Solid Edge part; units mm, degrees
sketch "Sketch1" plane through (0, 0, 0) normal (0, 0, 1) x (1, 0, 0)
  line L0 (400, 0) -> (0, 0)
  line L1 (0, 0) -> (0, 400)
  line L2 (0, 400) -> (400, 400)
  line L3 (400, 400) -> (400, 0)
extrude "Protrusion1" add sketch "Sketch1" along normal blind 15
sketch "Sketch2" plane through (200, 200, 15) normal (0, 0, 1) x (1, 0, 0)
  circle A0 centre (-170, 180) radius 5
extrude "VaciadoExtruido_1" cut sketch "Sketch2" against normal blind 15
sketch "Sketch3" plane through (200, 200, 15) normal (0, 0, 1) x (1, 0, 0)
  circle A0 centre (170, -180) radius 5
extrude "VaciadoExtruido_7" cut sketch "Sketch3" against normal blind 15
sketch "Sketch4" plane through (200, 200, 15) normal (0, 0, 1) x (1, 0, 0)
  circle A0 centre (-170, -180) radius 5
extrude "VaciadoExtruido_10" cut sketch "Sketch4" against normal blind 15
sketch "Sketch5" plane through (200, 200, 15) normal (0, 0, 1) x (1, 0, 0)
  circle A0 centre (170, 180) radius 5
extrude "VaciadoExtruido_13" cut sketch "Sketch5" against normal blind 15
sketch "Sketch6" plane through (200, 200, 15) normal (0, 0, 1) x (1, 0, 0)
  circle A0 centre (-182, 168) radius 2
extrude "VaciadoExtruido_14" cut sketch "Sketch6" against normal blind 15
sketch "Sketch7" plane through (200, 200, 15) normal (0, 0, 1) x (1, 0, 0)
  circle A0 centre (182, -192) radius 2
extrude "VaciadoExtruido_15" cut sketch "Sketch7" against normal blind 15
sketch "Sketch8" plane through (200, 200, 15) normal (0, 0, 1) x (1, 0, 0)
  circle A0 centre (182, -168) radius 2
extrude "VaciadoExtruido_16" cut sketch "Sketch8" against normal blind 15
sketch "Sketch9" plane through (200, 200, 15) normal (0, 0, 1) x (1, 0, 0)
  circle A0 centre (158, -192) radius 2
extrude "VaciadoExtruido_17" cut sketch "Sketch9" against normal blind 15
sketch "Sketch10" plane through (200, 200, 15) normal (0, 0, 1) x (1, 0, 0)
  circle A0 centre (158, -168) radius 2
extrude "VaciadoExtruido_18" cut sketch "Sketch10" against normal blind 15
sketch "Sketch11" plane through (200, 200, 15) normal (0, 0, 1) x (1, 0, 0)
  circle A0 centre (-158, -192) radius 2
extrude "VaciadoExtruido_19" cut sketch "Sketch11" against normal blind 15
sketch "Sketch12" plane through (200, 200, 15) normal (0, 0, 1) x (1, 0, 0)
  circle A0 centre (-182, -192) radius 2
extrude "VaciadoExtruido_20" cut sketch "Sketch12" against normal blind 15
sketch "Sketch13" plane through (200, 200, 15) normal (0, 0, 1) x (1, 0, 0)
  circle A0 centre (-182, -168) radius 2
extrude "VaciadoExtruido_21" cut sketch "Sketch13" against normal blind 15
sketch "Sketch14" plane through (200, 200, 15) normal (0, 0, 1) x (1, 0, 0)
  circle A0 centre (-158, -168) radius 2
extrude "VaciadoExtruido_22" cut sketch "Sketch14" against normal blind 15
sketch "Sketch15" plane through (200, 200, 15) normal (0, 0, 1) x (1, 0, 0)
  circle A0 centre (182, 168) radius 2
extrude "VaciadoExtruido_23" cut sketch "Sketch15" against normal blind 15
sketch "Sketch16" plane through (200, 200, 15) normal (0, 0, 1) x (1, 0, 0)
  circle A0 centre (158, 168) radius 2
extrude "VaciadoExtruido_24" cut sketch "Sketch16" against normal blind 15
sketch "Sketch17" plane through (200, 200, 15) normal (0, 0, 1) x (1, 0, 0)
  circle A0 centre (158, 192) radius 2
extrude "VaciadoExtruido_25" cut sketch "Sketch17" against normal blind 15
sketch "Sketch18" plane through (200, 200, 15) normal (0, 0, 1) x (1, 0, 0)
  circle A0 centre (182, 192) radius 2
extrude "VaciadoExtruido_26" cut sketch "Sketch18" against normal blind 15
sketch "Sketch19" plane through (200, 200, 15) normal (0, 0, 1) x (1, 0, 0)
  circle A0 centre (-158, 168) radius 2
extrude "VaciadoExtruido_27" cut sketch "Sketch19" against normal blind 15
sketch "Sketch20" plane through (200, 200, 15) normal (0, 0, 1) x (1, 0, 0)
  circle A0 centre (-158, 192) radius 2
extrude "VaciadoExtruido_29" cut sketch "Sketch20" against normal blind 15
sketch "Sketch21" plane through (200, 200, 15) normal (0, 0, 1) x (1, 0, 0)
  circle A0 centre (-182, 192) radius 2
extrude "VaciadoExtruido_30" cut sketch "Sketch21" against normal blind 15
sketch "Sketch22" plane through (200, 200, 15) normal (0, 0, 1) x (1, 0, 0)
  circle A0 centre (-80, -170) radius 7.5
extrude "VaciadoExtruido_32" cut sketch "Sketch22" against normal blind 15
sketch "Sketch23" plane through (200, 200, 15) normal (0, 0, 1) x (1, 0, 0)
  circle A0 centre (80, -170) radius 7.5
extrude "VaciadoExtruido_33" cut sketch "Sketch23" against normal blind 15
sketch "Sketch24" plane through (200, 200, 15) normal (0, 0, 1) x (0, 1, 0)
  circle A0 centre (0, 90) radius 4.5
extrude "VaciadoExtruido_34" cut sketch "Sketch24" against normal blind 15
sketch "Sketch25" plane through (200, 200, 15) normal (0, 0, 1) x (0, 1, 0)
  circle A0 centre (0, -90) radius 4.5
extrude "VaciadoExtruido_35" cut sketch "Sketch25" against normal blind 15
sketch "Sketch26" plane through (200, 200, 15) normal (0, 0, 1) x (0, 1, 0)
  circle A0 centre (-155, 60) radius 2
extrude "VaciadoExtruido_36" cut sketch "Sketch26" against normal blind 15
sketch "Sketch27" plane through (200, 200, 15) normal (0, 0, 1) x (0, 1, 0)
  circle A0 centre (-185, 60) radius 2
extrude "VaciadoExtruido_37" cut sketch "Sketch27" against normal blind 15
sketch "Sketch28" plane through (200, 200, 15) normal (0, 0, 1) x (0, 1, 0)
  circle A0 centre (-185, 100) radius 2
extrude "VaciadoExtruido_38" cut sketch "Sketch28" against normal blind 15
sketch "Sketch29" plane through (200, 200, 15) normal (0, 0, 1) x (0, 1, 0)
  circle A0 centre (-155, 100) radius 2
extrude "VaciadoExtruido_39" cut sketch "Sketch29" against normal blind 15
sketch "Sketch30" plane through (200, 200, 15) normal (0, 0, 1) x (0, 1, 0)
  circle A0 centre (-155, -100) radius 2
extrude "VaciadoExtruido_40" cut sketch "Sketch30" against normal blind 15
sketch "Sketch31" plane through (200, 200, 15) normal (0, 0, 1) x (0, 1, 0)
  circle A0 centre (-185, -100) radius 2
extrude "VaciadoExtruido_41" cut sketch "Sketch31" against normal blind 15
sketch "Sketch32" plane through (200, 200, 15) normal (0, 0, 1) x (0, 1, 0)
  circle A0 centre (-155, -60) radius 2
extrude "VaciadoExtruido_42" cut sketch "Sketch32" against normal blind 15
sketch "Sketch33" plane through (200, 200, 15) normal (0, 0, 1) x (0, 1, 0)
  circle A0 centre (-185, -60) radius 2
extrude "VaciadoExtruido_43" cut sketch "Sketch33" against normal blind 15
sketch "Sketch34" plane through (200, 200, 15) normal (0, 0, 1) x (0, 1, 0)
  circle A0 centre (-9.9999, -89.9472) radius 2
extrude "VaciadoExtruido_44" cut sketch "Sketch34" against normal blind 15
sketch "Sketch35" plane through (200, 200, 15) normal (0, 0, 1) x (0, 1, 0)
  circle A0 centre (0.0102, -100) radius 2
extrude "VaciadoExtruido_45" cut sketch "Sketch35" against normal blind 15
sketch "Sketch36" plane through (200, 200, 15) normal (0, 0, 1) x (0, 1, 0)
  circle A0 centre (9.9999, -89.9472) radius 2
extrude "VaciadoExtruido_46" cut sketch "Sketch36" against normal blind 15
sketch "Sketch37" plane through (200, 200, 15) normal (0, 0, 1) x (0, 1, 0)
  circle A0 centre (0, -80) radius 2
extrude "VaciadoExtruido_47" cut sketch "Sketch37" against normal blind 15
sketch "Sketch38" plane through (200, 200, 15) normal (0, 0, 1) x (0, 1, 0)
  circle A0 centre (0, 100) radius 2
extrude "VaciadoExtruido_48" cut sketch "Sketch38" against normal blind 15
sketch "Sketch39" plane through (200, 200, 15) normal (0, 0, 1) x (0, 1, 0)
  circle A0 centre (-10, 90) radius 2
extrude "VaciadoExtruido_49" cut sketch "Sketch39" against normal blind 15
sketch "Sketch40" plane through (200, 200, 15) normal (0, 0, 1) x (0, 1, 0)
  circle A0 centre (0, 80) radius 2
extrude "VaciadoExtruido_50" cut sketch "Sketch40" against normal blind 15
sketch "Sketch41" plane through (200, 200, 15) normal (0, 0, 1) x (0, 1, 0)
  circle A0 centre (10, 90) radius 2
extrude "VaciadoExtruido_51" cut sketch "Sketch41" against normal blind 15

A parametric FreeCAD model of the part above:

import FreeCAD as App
import Part
import Sketcher


def add_polygon(sketch, points):
    """Adds a closed chain of lines whose ends are joined by coincident constraints."""
    first, n = sketch.GeometryCount, len(points)
    for a, b in zip(points, points[1:] + points[:1]):
        sketch.addGeometry(Part.LineSegment(App.Vector(*a, 0), App.Vector(*b, 0)), False)
    for i in range(n):
        sketch.addConstraint(Sketcher.Constraint("Coincident", first + i, 2, first + (i + 1) % n, 1))

doc = App.newDocument("Part")
body = doc.addObject("PartDesign::Body", "Body")

# Sketch on XY plane
sketch1 = body.newObject("Sketcher::SketchObject", "Sketch")
sketch1.AttachmentSupport = (doc.getObject("XY_Plane"), [""])
sketch1.MapMode = "FlatFace"
add_polygon(sketch1, [(0, 0), (400, 0), (400, 400), (0, 400)])  # lines 0-3
sketch1.addConstraint([
    Sketcher.Constraint("Horizontal", 0),
    Sketcher.Constraint("Vertical", 1),
    Sketcher.Constraint("Horizontal", 2),
    Sketcher.Constraint("Vertical", 3),
    Sketcher.Constraint("Coincident", 3, 2, -1, 1),
    Sketcher.Constraint("Equal", 2, 1),
    Sketcher.Constraint("DistanceX", 0, 1, 0, 2, 400.0),
])
pad1 = body.newObject("PartDesign::Pad", "Pad")
pad1.Profile = sketch1
pad1.Length = 15

# Sketch on XY plane
sketch2 = body.newObject("Sketcher::SketchObject", "Sketch001")
sketch2.AttachmentSupport = (doc.getObject("XY_Plane"), [""])
sketch2.MapMode = "FlatFace"
sketch2.AttachmentOffset = App.Placement(App.Vector(0, 0, 15), App.Rotation())
sketch2.addGeometry(Part.Circle(App.Vector(30, 380, 0), App.Vector(0, 0, 1), 5), False)
sketch2.addConstraint([
    Sketcher.Constraint("Diameter", 0, 10.0),
    Sketcher.Constraint("DistanceX", -1, 1, 0, 3, 30.0),
    Sketcher.Constraint("DistanceY", -1, 1, 0, 3, 380.0),
])
pocket1 = body.newObject("PartDesign::Pocket", "Pocket")
pocket1.Profile = sketch2
pocket1.Length = 15

# Sketch on XY plane
sketch3 = body.newObject("Sketcher::SketchObject", "Sketch002")
sketch3.AttachmentSupport = (doc.getObject("XY_Plane"), [""])
sketch3.MapMode = "FlatFace"
sketch3.AttachmentOffset = App.Placement(App.Vector(0, 0, 15), App.Rotation())
sketch3.addGeometry(Part.Circle(App.Vector(370, 20, 0), App.Vector(0, 0, 1), 5), False)
sketch3.addConstraint([
    Sketcher.Constraint("Diameter", 0, 10.0),
    Sketcher.Constraint("DistanceX", -1, 1, 0, 3, 370.0),
    Sketcher.Constraint("DistanceY", -1, 1, 0, 3, 20.0),
])
pocket2 = body.newObject("PartDesign::Pocket", "Pocket001")
pocket2.Profile = sketch3
pocket2.Length = 15

# Sketch on XY plane
sketch4 = body.newObject("Sketcher::SketchObject", "Sketch003")
sketch4.AttachmentSupport = (doc.getObject("XY_Plane"), [""])
sketch4.MapMode = "FlatFace"
sketch4.AttachmentOffset = App.Placement(App.Vector(0, 0, 15), App.Rotation())
sketch4.addGeometry(Part.Circle(App.Vector(30, 20, 0), App.Vector(0, 0, 1), 5), False)
sketch4.addConstraint([
    Sketcher.Constraint("Diameter", 0, 10.0),
    Sketcher.Constraint("DistanceX", -1, 1, 0, 3, 30.0),
    Sketcher.Constraint("DistanceY", -1, 1, 0, 3, 20.0),
])
pocket3 = body.newObject("PartDesign::Pocket", "Pocket002")
pocket3.Profile = sketch4
pocket3.Length = 15

# Sketch on XY plane
sketch5 = body.newObject("Sketcher::SketchObject", "Sketch004")
sketch5.AttachmentSupport = (doc.getObject("XY_Plane"), [""])
sketch5.MapMode = "FlatFace"
sketch5.AttachmentOffset = App.Placement(App.Vector(0, 0, 15), App.Rotation())
sketch5.addGeometry(Part.Circle(App.Vector(370, 380, 0), App.Vector(0, 0, 1), 5), False)
sketch5.addConstraint([
    Sketcher.Constraint("Diameter", 0, 10.0),
    Sketcher.Constraint("DistanceX", -1, 1, 0, 3, 370.0),
    Sketcher.Constraint("DistanceY", -1, 1, 0, 3, 380.0),
])
pocket4 = body.newObject("PartDesign::Pocket", "Pocket003")
pocket4.Profile = sketch5
pocket4.Length = 15

# Sketch on XY plane
sketch6 = body.newObject("Sketcher::SketchObject", "Sketch005")
sketch6.AttachmentSupport = (doc.getObject("XY_Plane"), [""])
sketch6.MapMode = "FlatFace"
sketch6.AttachmentOffset = App.Placement(App.Vector(0, 0, 15), App.Rotation())
sketch6.addGeometry(Part.Circle(App.Vector(18, 368, 0), App.Vector(0, 0, 1), 2), False)
sketch6.addConstraint([
    Sketcher.Constraint("Diameter", 0, 4.0),
    Sketcher.Constraint("DistanceX", -1, 1, 0, 3, 18.0),
    Sketcher.Constraint("DistanceY", -1, 1, 0, 3, 368.0),
])
pocket5 = body.newObject("PartDesign::Pocket", "Pocket004")
pocket5.Profile = sketch6
pocket5.Length = 15

# Sketch on XY plane
sketch7 = body.newObject("Sketcher::SketchObject", "Sketch006")
sketch7.AttachmentSupport = (doc.getObject("XY_Plane"), [""])
sketch7.MapMode = "FlatFace"
sketch7.AttachmentOffset = App.Placement(App.Vector(0, 0, 15), App.Rotation())
sketch7.addGeometry(Part.Circle(App.Vector(382, 8, 0), App.Vector(0, 0, 1), 2), False)
sketch7.addConstraint([
    Sketcher.Constraint("Diameter", 0, 4.0),
    Sketcher.Constraint("DistanceX", -1, 1, 0, 3, 382.0),
    Sketcher.Constraint("DistanceY", -1, 1, 0, 3, 8.0),
])
pocket6 = body.newObject("PartDesign::Pocket", "Pocket005")
pocket6.Profile = sketch7
pocket6.Length = 15

# Sketch on XY plane
sketch8 = body.newObject("Sketcher::SketchObject", "Sketch007")
sketch8.AttachmentSupport = (doc.getObject("XY_Plane"), [""])
sketch8.MapMode = "FlatFace"
sketch8.AttachmentOffset = App.Placement(App.Vector(0, 0, 15), App.Rotation())
sketch8.addGeometry(Part.Circle(App.Vector(382, 32, 0), App.Vector(0, 0, 1), 2), False)
sketch8.addConstraint([
    Sketcher.Constraint("Diameter", 0, 4.0),
    Sketcher.Constraint("DistanceX", -1, 1, 0, 3, 382.0),
    Sketcher.Constraint("DistanceY", -1, 1, 0, 3, 32.0),
])
pocket7 = body.newObject("PartDesign::Pocket", "Pocket006")
pocket7.Profile = sketch8
pocket7.Length = 15

# Sketch on XY plane
sketch9 = body.newObject("Sketcher::SketchObject", "Sketch008")
sketch9.AttachmentSupport = (doc.getObject("XY_Plane"), [""])
sketch9.MapMode = "FlatFace"
sketch9.AttachmentOffset = App.Placement(App.Vector(0, 0, 15), App.Rotation())
sketch9.addGeometry(Part.Circle(App.Vector(358, 8, 0), App.Vector(0, 0, 1), 2), False)
sketch9.addConstraint([
    Sketcher.Constraint("Diameter", 0, 4.0),
    Sketcher.Constraint("DistanceX", -1, 1, 0, 3, 358.0),
    Sketcher.Constraint("DistanceY", -1, 1, 0, 3, 8.0),
])
pocket8 = body.newObject("PartDesign::Pocket", "Pocket007")
pocket8.Profile = sketch9
pocket8.Length = 15

# Sketch on XY plane
sketch10 = body.newObject("Sketcher::SketchObject", "Sketch009")
sketch10.AttachmentSupport = (doc.getObject("XY_Plane"), [""])
sketch10.MapMode = "FlatFace"
sketch10.AttachmentOffset = App.Placement(App.Vector(0, 0, 15), App.Rotation())
sketch10.addGeometry(Part.Circle(App.Vector(358, 32, 0), App.Vector(0, 0, 1), 2), False)
sketch10.addConstraint([
    Sketcher.Constraint("Diameter", 0, 4.0),
    Sketcher.Constraint("DistanceX", -1, 1, 0, 3, 358.0),
    Sketcher.Constraint("DistanceY", -1, 1, 0, 3, 32.0),
])
pocket9 = body.newObject("PartDesign::Pocket", "Pocket008")
pocket9.Profile = sketch10
pocket9.Length = 15

# Sketch on XY plane
sketch11 = body.newObject("Sketcher::SketchObject", "Sketch010")
sketch11.AttachmentSupport = (doc.getObject("XY_Plane"), [""])
sketch11.MapMode = "FlatFace"
sketch11.AttachmentOffset = App.Placement(App.Vector(0, 0, 15), App.Rotation())
sketch11.addGeometry(Part.Circle(App.Vector(42, 8, 0), App.Vector(0, 0, 1), 2), False)
sketch11.addConstraint([
    Sketcher.Constraint("Diameter", 0, 4.0),
    Sketcher.Constraint("DistanceX", -1, 1, 0, 3, 42.0),
    Sketcher.Constraint("DistanceY", -1, 1, 0, 3, 8.0),
])
pocket10 = body.newObject("PartDesign::Pocket", "Pocket009")
pocket10.Profile = sketch11
pocket10.Length = 15

# Sketch on XY plane
sketch12 = body.newObject("Sketcher::SketchObject", "Sketch011")
sketch12.AttachmentSupport = (doc.getObject("XY_Plane"), [""])
sketch12.MapMode = "FlatFace"
sketch12.AttachmentOffset = App.Placement(App.Vector(0, 0, 15), App.Rotation())
sketch12.addGeometry(Part.Circle(App.Vector(18, 8, 0), App.Vector(0, 0, 1), 2), False)
sketch12.addConstraint([
    Sketcher.Constraint("Diameter", 0, 4.0),
    Sketcher.Constraint("DistanceX", -1, 1, 0, 3, 18.0),
    Sketcher.Constraint("DistanceY", -1, 1, 0, 3, 8.0),
])
pocket11 = body.newObject("PartDesign::Pocket", "Pocket010")
pocket11.Profile = sketch12
pocket11.Length = 15

# Sketch on XY plane
sketch13 = body.newObject("Sketcher::SketchObject", "Sketch012")
sketch13.AttachmentSupport = (doc.getObject("XY_Plane"), [""])
sketch13.MapMode = "FlatFace"
sketch13.AttachmentOffset = App.Placement(App.Vector(0, 0, 15), App.Rotation())
sketch13.addGeometry(Part.Circle(App.Vector(18, 32, 0), App.Vector(0, 0, 1), 2), False)
sketch13.addConstraint([
    Sketcher.Constraint("Diameter", 0, 4.0),
    Sketcher.Constraint("DistanceX", -1, 1, 0, 3, 18.0),
    Sketcher.Constraint("DistanceY", -1, 1, 0, 3, 32.0),
])
pocket12 = body.newObject("PartDesign::Pocket", "Pocket011")
pocket12.Profile = sketch13
pocket12.Length = 15

# Sketch on XY plane
sketch14 = body.newObject("Sketcher::SketchObject", "Sketch013")
sketch14.AttachmentSupport = (doc.getObject("XY_Plane"), [""])
sketch14.MapMode = "FlatFace"
sketch14.AttachmentOffset = App.Placement(App.Vector(0, 0, 15), App.Rotation())
sketch14.addGeometry(Part.Circle(App.Vector(42, 32, 0), App.Vector(0, 0, 1), 2), False)
sketch14.addConstraint([
    Sketcher.Constraint("Diameter", 0, 4.0),
    Sketcher.Constraint("DistanceX", -1, 1, 0, 3, 42.0),
    Sketcher.Constraint("DistanceY", -1, 1, 0, 3, 32.0),
])
pocket13 = body.newObject("PartDesign::Pocket", "Pocket012")
pocket13.Profile = sketch14
pocket13.Length = 15

# Sketch on XY plane
sketch15 = body.newObject("Sketcher::SketchObject", "Sketch014")
sketch15.AttachmentSupport = (doc.getObject("XY_Plane"), [""])
sketch15.MapMode = "FlatFace"
sketch15.AttachmentOffset = App.Placement(App.Vector(0, 0, 15), App.Rotation())
sketch15.addGeometry(Part.Circle(App.Vector(382, 368, 0), App.Vector(0, 0, 1), 2), False)
sketch15.addConstraint([
    Sketcher.Constraint("Diameter", 0, 4.0),
    Sketcher.Constraint("DistanceX", -1, 1, 0, 3, 382.0),
    Sketcher.Constraint("DistanceY", -1, 1, 0, 3, 368.0),
])
pocket14 = body.newObject("PartDesign::Pocket", "Pocket013")
pocket14.Profile = sketch15
pocket14.Length = 15

# Sketch on XY plane
sketch16 = body.newObject("Sketcher::SketchObject", "Sketch015")
sketch16.AttachmentSupport = (doc.getObject("XY_Plane"), [""])
sketch16.MapMode = "FlatFace"
sketch16.AttachmentOffset = App.Placement(App.Vector(0, 0, 15), App.Rotation())
sketch16.addGeometry(Part.Circle(App.Vector(358, 368, 0), App.Vector(0, 0, 1), 2), False)
sketch16.addConstraint([
    Sketcher.Constraint("Diameter", 0, 4.0),
    Sketcher.Constraint("DistanceX", -1, 1, 0, 3, 358.0),
    Sketcher.Constraint("DistanceY", -1, 1, 0, 3, 368.0),
])
pocket15 = body.newObject("PartDesign::Pocket", "Pocket014")
pocket15.Profile = sketch16
pocket15.Length = 15

# Sketch on XY plane
sketch17 = body.newObject("Sketcher::SketchObject", "Sketch016")
sketch17.AttachmentSupport = (doc.getObject("XY_Plane"), [""])
sketch17.MapMode = "FlatFace"
sketch17.AttachmentOffset = App.Placement(App.Vector(0, 0, 15), App.Rotation())
sketch17.addGeometry(Part.Circle(App.Vector(358, 392, 0), App.Vector(0, 0, 1), 2), False)
sketch17.addConstraint([
    Sketcher.Constraint("Diameter", 0, 4.0),
    Sketcher.Constraint("DistanceX", -1, 1, 0, 3, 358.0),
    Sketcher.Constraint("DistanceY", -1, 1, 0, 3, 392.0),
])
pocket16 = body.newObject("PartDesign::Pocket", "Pocket015")
pocket16.Profile = sketch17
pocket16.Length = 15

# Sketch on XY plane
sketch18 = body.newObject("Sketcher::SketchObject", "Sketch017")
sketch18.AttachmentSupport = (doc.getObject("XY_Plane"), [""])
sketch18.MapMode = "FlatFace"
sketch18.AttachmentOffset = App.Placement(App.Vector(0, 0, 15), App.Rotation())
sketch18.addGeometry(Part.Circle(App.Vector(382, 392, 0), App.Vector(0, 0, 1), 2), False)
sketch18.addConstraint([
    Sketcher.Constraint("Diameter", 0, 4.0),
    Sketcher.Constraint("DistanceX", -1, 1, 0, 3, 382.0),
    Sketcher.Constraint("DistanceY", -1, 1, 0, 3, 392.0),
])
pocket17 = body.newObject("PartDesign::Pocket", "Pocket016")
pocket17.Profile = sketch18
pocket17.Length = 15

# Sketch on XY plane
sketch19 = body.newObject("Sketcher::SketchObject", "Sketch018")
sketch19.AttachmentSupport = (doc.getObject("XY_Plane"), [""])
sketch19.MapMode = "FlatFace"
sketch19.AttachmentOffset = App.Placement(App.Vector(0, 0, 15), App.Rotation())
sketch19.addGeometry(Part.Circle(App.Vector(42, 368, 0), App.Vector(0, 0, 1), 2), False)
sketch19.addConstraint([
    Sketcher.Constraint("Diameter", 0, 4.0),
    Sketcher.Constraint("DistanceX", -1, 1, 0, 3, 42.0),
    Sketcher.Constraint("DistanceY", -1, 1, 0, 3, 368.0),
])
pocket18 = body.newObject("PartDesign::Pocket", "Pocket017")
pocket18.Profile = sketch19
pocket18.Length = 15

# Sketch on XY plane
sketch20 = body.newObject("Sketcher::SketchObject", "Sketch019")
sketch20.AttachmentSupport = (doc.getObject("XY_Plane"), [""])
sketch20.MapMode = "FlatFace"
sketch20.AttachmentOffset = App.Placement(App.Vector(0, 0, 15), App.Rotation())
sketch20.addGeometry(Part.Circle(App.Vector(42, 392, 0), App.Vector(0, 0, 1), 2), False)
sketch20.addConstraint([
    Sketcher.Constraint("Diameter", 0, 4.0),
    Sketcher.Constraint("DistanceX", -1, 1, 0, 3, 42.0),
    Sketcher.Constraint("DistanceY", -1, 1, 0, 3, 392.0),
])
pocket19 = body.newObject("PartDesign::Pocket", "Pocket018")
pocket19.Profile = sketch20
pocket19.Length = 15

# Sketch on XY plane
sketch21 = body.newObject("Sketcher::SketchObject", "Sketch020")
sketch21.AttachmentSupport = (doc.getObject("XY_Plane"), [""])
sketch21.MapMode = "FlatFace"
sketch21.AttachmentOffset = App.Placement(App.Vector(0, 0, 15), App.Rotation())
sketch21.addGeometry(Part.Circle(App.Vector(18, 392, 0), App.Vector(0, 0, 1), 2), False)
sketch21.addConstraint([
    Sketcher.Constraint("Diameter", 0, 4.0),
    Sketcher.Constraint("DistanceX", -1, 1, 0, 3, 18.0),
    Sketcher.Constraint("DistanceY", -1, 1, 0, 3, 392.0),
])
pocket20 = body.newObject("PartDesign::Pocket", "Pocket019")
pocket20.Profile = sketch21
pocket20.Length = 15

# Sketch on XY plane
sketch22 = body.newObject("Sketcher::SketchObject", "Sketch021")
sketch22.AttachmentSupport = (doc.getObject("XY_Plane"), [""])
sketch22.MapMode = "FlatFace"
sketch22.AttachmentOffset = App.Placement(App.Vector(0, 0, 15), App.Rotation())
sketch22.addGeometry(Part.Circle(App.Vector(120, 30, 0), App.Vector(0, 0, 1), 7.5), False)
sketch22.addConstraint([
    Sketcher.Constraint("Diameter", 0, 15.0),
    Sketcher.Constraint("DistanceX", -1, 1, 0, 3, 120.0),
    Sketcher.Constraint("DistanceY", -1, 1, 0, 3, 30.0),
])
pocket21 = body.newObject("PartDesign::Pocket", "Pocket020")
pocket21.Profile = sketch22
pocket21.Length = 15

# Sketch on XY plane
sketch23 = body.newObject("Sketcher::SketchObject", "Sketch022")
sketch23.AttachmentSupport = (doc.getObject("XY_Plane"), [""])
sketch23.MapMode = "FlatFace"
sketch23.AttachmentOffset = App.Placement(App.Vector(0, 0, 15), App.Rotation())
sketch23.addGeometry(Part.Circle(App.Vector(280, 30, 0), App.Vector(0, 0, 1), 7.5), False)
sketch23.addConstraint([
    Sketcher.Constraint("Diameter", 0, 15.0),
    Sketcher.Constraint("DistanceX", -1, 1, 0, 3, 280.0),
    Sketcher.Constraint("DistanceY", -1, 1, 0, 3, 30.0),
])
pocket22 = body.newObject("PartDesign::Pocket", "Pocket021")
pocket22.Profile = sketch23
pocket22.Length = 15

# Sketch on XY plane
sketch24 = body.newObject("Sketcher::SketchObject", "Sketch023")
sketch24.AttachmentSupport = (doc.getObject("XY_Plane"), [""])
sketch24.MapMode = "FlatFace"
sketch24.AttachmentOffset = App.Placement(App.Vector(0, 0, 15), App.Rotation())
sketch24.addGeometry(Part.Circle(App.Vector(110, 200, 0), App.Vector(0, 0, 1), 4.5), False)
sketch24.addConstraint([
    Sketcher.Constraint("Diameter", 0, 9.0),
    Sketcher.Constraint("DistanceX", -1, 1, 0, 3, 110.0),
    Sketcher.Constraint("DistanceY", -1, 1, 0, 3, 200.0),
])
pocket23 = body.newObject("PartDesign::Pocket", "Pocket022")
pocket23.Profile = sketch24
pocket23.Length = 15

# Sketch on XY plane
sketch25 = body.newObject("Sketcher::SketchObject", "Sketch024")
sketch25.AttachmentSupport = (doc.getObject("XY_Plane"), [""])
sketch25.MapMode = "FlatFace"
sketch25.AttachmentOffset = App.Placement(App.Vector(0, 0, 15), App.Rotation())
sketch25.addGeometry(Part.Circle(App.Vector(290, 200, 0), App.Vector(0, 0, 1), 4.5), False)
sketch25.addConstraint([
    Sketcher.Constraint("Diameter", 0, 9.0),
    Sketcher.Constraint("DistanceX", -1, 1, 0, 3, 290.0),
    Sketcher.Constraint("DistanceY", -1, 1, 0, 3, 200.0),
])
pocket24 = body.newObject("PartDesign::Pocket", "Pocket023")
pocket24.Profile = sketch25
pocket24.Length = 15

# Sketch on XY plane
sketch26 = body.newObject("Sketcher::SketchObject", "Sketch025")
sketch26.AttachmentSupport = (doc.getObject("XY_Plane"), [""])
sketch26.MapMode = "FlatFace"
sketch26.AttachmentOffset = App.Placement(App.Vector(0, 0, 15), App.Rotation())
sketch26.addGeometry(Part.Circle(App.Vector(140, 45, 0), App.Vector(0, 0, 1), 2), False)
sketch26.addConstraint([
    Sketcher.Constraint("Diameter", 0, 4.0),
    Sketcher.Constraint("DistanceX", -1, 1, 0, 3, 140.0),
    Sketcher.Constraint("DistanceY", -1, 1, 0, 3, 45.0),
])
pocket25 = body.newObject("PartDesign::Pocket", "Pocket024")
pocket25.Profile = sketch26
pocket25.Length = 15

# Sketch on XY plane
sketch27 = body.newObject("Sketcher::SketchObject", "Sketch026")
sketch27.AttachmentSupport = (doc.getObject("XY_Plane"), [""])
sketch27.MapMode = "FlatFace"
sketch27.AttachmentOffset = App.Placement(App.Vector(0, 0, 15), App.Rotation())
sketch27.addGeometry(Part.Circle(App.Vector(140, 15, 0), App.Vector(0, 0, 1), 2), False)
sketch27.addConstraint([
    Sketcher.Constraint("Diameter", 0, 4.0),
    Sketcher.Constraint("DistanceX", -1, 1, 0, 3, 140.0),
    Sketcher.Constraint("DistanceY", -1, 1, 0, 3, 15.0),
])
pocket26 = body.newObject("PartDesign::Pocket", "Pocket025")
pocket26.Profile = sketch27
pocket26.Length = 15

# Sketch on XY plane
sketch28 = body.newObject("Sketcher::SketchObject", "Sketch027")
sketch28.AttachmentSupport = (doc.getObject("XY_Plane"), [""])
sketch28.MapMode = "FlatFace"
sketch28.AttachmentOffset = App.Placement(App.Vector(0, 0, 15), App.Rotation())
sketch28.addGeometry(Part.Circle(App.Vector(100, 15, 0), App.Vector(0, 0, 1), 2), False)
sketch28.addConstraint([
    Sketcher.Constraint("Diameter", 0, 4.0),
    Sketcher.Constraint("DistanceX", -1, 1, 0, 3, 100.0),
    Sketcher.Constraint("DistanceY", -1, 1, 0, 3, 15.0),
])
pocket27 = body.newObject("PartDesign::Pocket", "Pocket026")
pocket27.Profile = sketch28
pocket27.Length = 15

# Sketch on XY plane
sketch29 = body.newObject("Sketcher::SketchObject", "Sketch028")
sketch29.AttachmentSupport = (doc.getObject("XY_Plane"), [""])
sketch29.MapMode = "FlatFace"
sketch29.AttachmentOffset = App.Placement(App.Vector(0, 0, 15), App.Rotation())
sketch29.addGeometry(Part.Circle(App.Vector(100, 45, 0), App.Vector(0, 0, 1), 2), False)
sketch29.addConstraint([
    Sketcher.Constraint("Diameter", 0, 4.0),
    Sketcher.Constraint("DistanceX", -1, 1, 0, 3, 100.0),
    Sketcher.Constraint("DistanceY", -1, 1, 0, 3, 45.0),
])
pocket28 = body.newObject("PartDesign::Pocket", "Pocket027")
pocket28.Profile = sketch29
pocket28.Length = 15

# Sketch on XY plane
sketch30 = body.newObject("Sketcher::SketchObject", "Sketch029")
sketch30.AttachmentSupport = (doc.getObject("XY_Plane"), [""])
sketch30.MapMode = "FlatFace"
sketch30.AttachmentOffset = App.Placement(App.Vector(0, 0, 15), App.Rotation())
sketch30.addGeometry(Part.Circle(App.Vector(300, 45, 0), App.Vector(0, 0, 1), 2), False)
sketch30.addConstraint([
    Sketcher.Constraint("Diameter", 0, 4.0),
    Sketcher.Constraint("DistanceX", -1, 1, 0, 3, 300.0),
    Sketcher.Constraint("DistanceY", -1, 1, 0, 3, 45.0),
])
pocket29 = body.newObject("PartDesign::Pocket", "Pocket028")
pocket29.Profile = sketch30
pocket29.Length = 15

# Sketch on XY plane
sketch31 = body.newObject("Sketcher::SketchObject", "Sketch030")
sketch31.AttachmentSupport = (doc.getObject("XY_Plane"), [""])
sketch31.MapMode = "FlatFace"
sketch31.AttachmentOffset = App.Placement(App.Vector(0, 0, 15), App.Rotation())
sketch31.addGeometry(Part.Circle(App.Vector(300, 15, 0), App.Vector(0, 0, 1), 2), False)
sketch31.addConstraint([
    Sketcher.Constraint("Diameter", 0, 4.0),
    Sketcher.Constraint("DistanceX", -1, 1, 0, 3, 300.0),
    Sketcher.Constraint("DistanceY", -1, 1, 0, 3, 15.0),
])
pocket30 = body.newObject("PartDesign::Pocket", "Pocket029")
pocket30.Profile = sketch31
pocket30.Length = 15

# Sketch on XY plane
sketch32 = body.newObject("Sketcher::SketchObject", "Sketch031")
sketch32.AttachmentSupport = (doc.getObject("XY_Plane"), [""])
sketch32.MapMode = "FlatFace"
sketch32.AttachmentOffset = App.Placement(App.Vector(0, 0, 15), App.Rotation())
sketch32.addGeometry(Part.Circle(App.Vector(260, 45, 0), App.Vector(0, 0, 1), 2), False)
sketch32.addConstraint([
    Sketcher.Constraint("Diameter", 0, 4.0),
    Sketcher.Constraint("DistanceX", -1, 1, 0, 3, 260.0),
    Sketcher.Constraint("DistanceY", -1, 1, 0, 3, 45.0),
])
pocket31 = body.newObject("PartDesign::Pocket", "Pocket030")
pocket31.Profile = sketch32
pocket31.Length = 15

# Sketch on XY plane
sketch33 = body.newObject("Sketcher::SketchObject", "Sketch032")
sketch33.AttachmentSupport = (doc.getObject("XY_Plane"), [""])
sketch33.MapMode = "FlatFace"
sketch33.AttachmentOffset = App.Placement(App.Vector(0, 0, 15), App.Rotation())
sketch33.addGeometry(Part.Circle(App.Vector(260, 15, 0), App.Vector(0, 0, 1), 2), False)
sketch33.addConstraint([
    Sketcher.Constraint("Diameter", 0, 4.0),
    Sketcher.Constraint("DistanceX", -1, 1, 0, 3, 260.0),
    Sketcher.Constraint("DistanceY", -1, 1, 0, 3, 15.0),
])
pocket32 = body.newObject("PartDesign::Pocket", "Pocket031")
pocket32.Profile = sketch33
pocket32.Length = 15

# Sketch on XY plane
sketch34 = body.newObject("Sketcher::SketchObject", "Sketch033")
sketch34.AttachmentSupport = (doc.getObject("XY_Plane"), [""])
sketch34.MapMode = "FlatFace"
sketch34.AttachmentOffset = App.Placement(App.Vector(0, 0, 15), App.Rotation())
sketch34.addGeometry(Part.Circle(App.Vector(289.9472, 190.0001, 0), App.Vector(0, 0, 1), 2), False)
sketch34.addConstraint([
    Sketcher.Constraint("Diameter", 0, 4.0),
    Sketcher.Constraint("DistanceY", -1, 1, 0, 3, 190.0),
    Sketcher.Constraint("DistanceX", -1, 1, 0, 3, 289.9472),
])
pocket33 = body.newObject("PartDesign::Pocket", "Pocket032")
pocket33.Profile = sketch34
pocket33.Length = 15

# Sketch on XY plane
sketch35 = body.newObject("Sketcher::SketchObject", "Sketch034")
sketch35.AttachmentSupport = (doc.getObject("XY_Plane"), [""])
sketch35.MapMode = "FlatFace"
sketch35.AttachmentOffset = App.Placement(App.Vector(0, 0, 15), App.Rotation())
sketch35.addGeometry(Part.Circle(App.Vector(300, 200.0102, 0), App.Vector(0, 0, 1), 2), False)
sketch35.addConstraint([
    Sketcher.Constraint("Diameter", 0, 4.0),
    Sketcher.Constraint("DistanceX", -1, 1, 0, 3, 300.0),
    Sketcher.Constraint("DistanceY", -1, 1, 0, 3, 200.0102),
])
pocket34 = body.newObject("PartDesign::Pocket", "Pocket033")
pocket34.Profile = sketch35
pocket34.Length = 15

# Sketch on XY plane
sketch36 = body.newObject("Sketcher::SketchObject", "Sketch035")
sketch36.AttachmentSupport = (doc.getObject("XY_Plane"), [""])
sketch36.MapMode = "FlatFace"
sketch36.AttachmentOffset = App.Placement(App.Vector(0, 0, 15), App.Rotation())
sketch36.addGeometry(Part.Circle(App.Vector(289.9472, 209.9999, 0), App.Vector(0, 0, 1), 2), False)
sketch36.addConstraint([
    Sketcher.Constraint("Diameter", 0, 4.0),
    Sketcher.Constraint("DistanceY", -1, 1, 0, 3, 210.0),
    Sketcher.Constraint("DistanceX", -1, 1, 0, 3, 289.9472),
])
pocket35 = body.newObject("PartDesign::Pocket", "Pocket034")
pocket35.Profile = sketch36
pocket35.Length = 15

# Sketch on XY plane
sketch37 = body.newObject("Sketcher::SketchObject", "Sketch036")
sketch37.AttachmentSupport = (doc.getObject("XY_Plane"), [""])
sketch37.MapMode = "FlatFace"
sketch37.AttachmentOffset = App.Placement(App.Vector(0, 0, 15), App.Rotation())
sketch37.addGeometry(Part.Circle(App.Vector(280, 200, 0), App.Vector(0, 0, 1), 2), False)
sketch37.addConstraint([
    Sketcher.Constraint("Diameter", 0, 4.0),
    Sketcher.Constraint("DistanceX", -1, 1, 0, 3, 280.0),
    Sketcher.Constraint("DistanceY", -1, 1, 0, 3, 200.0),
])
pocket36 = body.newObject("PartDesign::Pocket", "Pocket035")
pocket36.Profile = sketch37
pocket36.Length = 15

# Sketch on XY plane
sketch38 = body.newObject("Sketcher::SketchObject", "Sketch037")
sketch38.AttachmentSupport = (doc.getObject("XY_Plane"), [""])
sketch38.MapMode = "FlatFace"
sketch38.AttachmentOffset = App.Placement(App.Vector(0, 0, 15), App.Rotation())
sketch38.addGeometry(Part.Circle(App.Vector(100, 200, 0), App.Vector(0, 0, 1), 2), False)
sketch38.addConstraint([
    Sketcher.Constraint("Diameter", 0, 4.0),
    Sketcher.Constraint("DistanceX", -1, 1, 0, 3, 100.0),
    Sketcher.Constraint("DistanceY", -1, 1, 0, 3, 200.0),
])
pocket37 = body.newObject("PartDesign::Pocket", "Pocket036")
pocket37.Profile = sketch38
pocket37.Length = 15

# Sketch on XY plane
sketch39 = body.newObject("Sketcher::SketchObject", "Sketch038")
sketch39.AttachmentSupport = (doc.getObject("XY_Plane"), [""])
sketch39.MapMode = "FlatFace"
sketch39.AttachmentOffset = App.Placement(App.Vector(0, 0, 15), App.Rotation())
sketch39.addGeometry(Part.Circle(App.Vector(110, 190, 0), App.Vector(0, 0, 1), 2), False)
sketch39.addConstraint([
    Sketcher.Constraint("Diameter", 0, 4.0),
    Sketcher.Constraint("DistanceX", -1, 1, 0, 3, 110.0),
    Sketcher.Constraint("DistanceY", -1, 1, 0, 3, 190.0),
])
pocket38 = body.newObject("PartDesign::Pocket", "Pocket037")
pocket38.Profile = sketch39
pocket38.Length = 15

# Sketch on XY plane
sketch40 = body.newObject("Sketcher::SketchObject", "Sketch039")
sketch40.AttachmentSupport = (doc.getObject("XY_Plane"), [""])
sketch40.MapMode = "FlatFace"
sketch40.AttachmentOffset = App.Placement(App.Vector(0, 0, 15), App.Rotation())
sketch40.addGeometry(Part.Circle(App.Vector(120, 200, 0), App.Vector(0, 0, 1), 2), False)
sketch40.addConstraint([
    Sketcher.Constraint("Diameter", 0, 4.0),
    Sketcher.Constraint("DistanceX", -1, 1, 0, 3, 120.0),
    Sketcher.Constraint("DistanceY", -1, 1, 0, 3, 200.0),
])
pocket39 = body.newObject("PartDesign::Pocket", "Pocket038")
pocket39.Profile = sketch40
pocket39.Length = 15

# Sketch on XY plane
sketch41 = body.newObject("Sketcher::SketchObject", "Sketch040")
sketch41.AttachmentSupport = (doc.getObject("XY_Plane"), [""])
sketch41.MapMode = "FlatFace"
sketch41.AttachmentOffset = App.Placement(App.Vector(0, 0, 15), App.Rotation())
sketch41.addGeometry(Part.Circle(App.Vector(110, 210, 0), App.Vector(0, 0, 1), 2), False)
sketch41.addConstraint([
    Sketcher.Constraint("Diameter", 0, 4.0),
    Sketcher.Constraint("DistanceX", -1, 1, 0, 3, 110.0),
    Sketcher.Constraint("DistanceY", -1, 1, 0, 3, 210.0),
])
pocket40 = body.newObject("PartDesign::Pocket", "Pocket039")
pocket40.Profile = sketch41
pocket40.Length = 15

doc.recompute()
